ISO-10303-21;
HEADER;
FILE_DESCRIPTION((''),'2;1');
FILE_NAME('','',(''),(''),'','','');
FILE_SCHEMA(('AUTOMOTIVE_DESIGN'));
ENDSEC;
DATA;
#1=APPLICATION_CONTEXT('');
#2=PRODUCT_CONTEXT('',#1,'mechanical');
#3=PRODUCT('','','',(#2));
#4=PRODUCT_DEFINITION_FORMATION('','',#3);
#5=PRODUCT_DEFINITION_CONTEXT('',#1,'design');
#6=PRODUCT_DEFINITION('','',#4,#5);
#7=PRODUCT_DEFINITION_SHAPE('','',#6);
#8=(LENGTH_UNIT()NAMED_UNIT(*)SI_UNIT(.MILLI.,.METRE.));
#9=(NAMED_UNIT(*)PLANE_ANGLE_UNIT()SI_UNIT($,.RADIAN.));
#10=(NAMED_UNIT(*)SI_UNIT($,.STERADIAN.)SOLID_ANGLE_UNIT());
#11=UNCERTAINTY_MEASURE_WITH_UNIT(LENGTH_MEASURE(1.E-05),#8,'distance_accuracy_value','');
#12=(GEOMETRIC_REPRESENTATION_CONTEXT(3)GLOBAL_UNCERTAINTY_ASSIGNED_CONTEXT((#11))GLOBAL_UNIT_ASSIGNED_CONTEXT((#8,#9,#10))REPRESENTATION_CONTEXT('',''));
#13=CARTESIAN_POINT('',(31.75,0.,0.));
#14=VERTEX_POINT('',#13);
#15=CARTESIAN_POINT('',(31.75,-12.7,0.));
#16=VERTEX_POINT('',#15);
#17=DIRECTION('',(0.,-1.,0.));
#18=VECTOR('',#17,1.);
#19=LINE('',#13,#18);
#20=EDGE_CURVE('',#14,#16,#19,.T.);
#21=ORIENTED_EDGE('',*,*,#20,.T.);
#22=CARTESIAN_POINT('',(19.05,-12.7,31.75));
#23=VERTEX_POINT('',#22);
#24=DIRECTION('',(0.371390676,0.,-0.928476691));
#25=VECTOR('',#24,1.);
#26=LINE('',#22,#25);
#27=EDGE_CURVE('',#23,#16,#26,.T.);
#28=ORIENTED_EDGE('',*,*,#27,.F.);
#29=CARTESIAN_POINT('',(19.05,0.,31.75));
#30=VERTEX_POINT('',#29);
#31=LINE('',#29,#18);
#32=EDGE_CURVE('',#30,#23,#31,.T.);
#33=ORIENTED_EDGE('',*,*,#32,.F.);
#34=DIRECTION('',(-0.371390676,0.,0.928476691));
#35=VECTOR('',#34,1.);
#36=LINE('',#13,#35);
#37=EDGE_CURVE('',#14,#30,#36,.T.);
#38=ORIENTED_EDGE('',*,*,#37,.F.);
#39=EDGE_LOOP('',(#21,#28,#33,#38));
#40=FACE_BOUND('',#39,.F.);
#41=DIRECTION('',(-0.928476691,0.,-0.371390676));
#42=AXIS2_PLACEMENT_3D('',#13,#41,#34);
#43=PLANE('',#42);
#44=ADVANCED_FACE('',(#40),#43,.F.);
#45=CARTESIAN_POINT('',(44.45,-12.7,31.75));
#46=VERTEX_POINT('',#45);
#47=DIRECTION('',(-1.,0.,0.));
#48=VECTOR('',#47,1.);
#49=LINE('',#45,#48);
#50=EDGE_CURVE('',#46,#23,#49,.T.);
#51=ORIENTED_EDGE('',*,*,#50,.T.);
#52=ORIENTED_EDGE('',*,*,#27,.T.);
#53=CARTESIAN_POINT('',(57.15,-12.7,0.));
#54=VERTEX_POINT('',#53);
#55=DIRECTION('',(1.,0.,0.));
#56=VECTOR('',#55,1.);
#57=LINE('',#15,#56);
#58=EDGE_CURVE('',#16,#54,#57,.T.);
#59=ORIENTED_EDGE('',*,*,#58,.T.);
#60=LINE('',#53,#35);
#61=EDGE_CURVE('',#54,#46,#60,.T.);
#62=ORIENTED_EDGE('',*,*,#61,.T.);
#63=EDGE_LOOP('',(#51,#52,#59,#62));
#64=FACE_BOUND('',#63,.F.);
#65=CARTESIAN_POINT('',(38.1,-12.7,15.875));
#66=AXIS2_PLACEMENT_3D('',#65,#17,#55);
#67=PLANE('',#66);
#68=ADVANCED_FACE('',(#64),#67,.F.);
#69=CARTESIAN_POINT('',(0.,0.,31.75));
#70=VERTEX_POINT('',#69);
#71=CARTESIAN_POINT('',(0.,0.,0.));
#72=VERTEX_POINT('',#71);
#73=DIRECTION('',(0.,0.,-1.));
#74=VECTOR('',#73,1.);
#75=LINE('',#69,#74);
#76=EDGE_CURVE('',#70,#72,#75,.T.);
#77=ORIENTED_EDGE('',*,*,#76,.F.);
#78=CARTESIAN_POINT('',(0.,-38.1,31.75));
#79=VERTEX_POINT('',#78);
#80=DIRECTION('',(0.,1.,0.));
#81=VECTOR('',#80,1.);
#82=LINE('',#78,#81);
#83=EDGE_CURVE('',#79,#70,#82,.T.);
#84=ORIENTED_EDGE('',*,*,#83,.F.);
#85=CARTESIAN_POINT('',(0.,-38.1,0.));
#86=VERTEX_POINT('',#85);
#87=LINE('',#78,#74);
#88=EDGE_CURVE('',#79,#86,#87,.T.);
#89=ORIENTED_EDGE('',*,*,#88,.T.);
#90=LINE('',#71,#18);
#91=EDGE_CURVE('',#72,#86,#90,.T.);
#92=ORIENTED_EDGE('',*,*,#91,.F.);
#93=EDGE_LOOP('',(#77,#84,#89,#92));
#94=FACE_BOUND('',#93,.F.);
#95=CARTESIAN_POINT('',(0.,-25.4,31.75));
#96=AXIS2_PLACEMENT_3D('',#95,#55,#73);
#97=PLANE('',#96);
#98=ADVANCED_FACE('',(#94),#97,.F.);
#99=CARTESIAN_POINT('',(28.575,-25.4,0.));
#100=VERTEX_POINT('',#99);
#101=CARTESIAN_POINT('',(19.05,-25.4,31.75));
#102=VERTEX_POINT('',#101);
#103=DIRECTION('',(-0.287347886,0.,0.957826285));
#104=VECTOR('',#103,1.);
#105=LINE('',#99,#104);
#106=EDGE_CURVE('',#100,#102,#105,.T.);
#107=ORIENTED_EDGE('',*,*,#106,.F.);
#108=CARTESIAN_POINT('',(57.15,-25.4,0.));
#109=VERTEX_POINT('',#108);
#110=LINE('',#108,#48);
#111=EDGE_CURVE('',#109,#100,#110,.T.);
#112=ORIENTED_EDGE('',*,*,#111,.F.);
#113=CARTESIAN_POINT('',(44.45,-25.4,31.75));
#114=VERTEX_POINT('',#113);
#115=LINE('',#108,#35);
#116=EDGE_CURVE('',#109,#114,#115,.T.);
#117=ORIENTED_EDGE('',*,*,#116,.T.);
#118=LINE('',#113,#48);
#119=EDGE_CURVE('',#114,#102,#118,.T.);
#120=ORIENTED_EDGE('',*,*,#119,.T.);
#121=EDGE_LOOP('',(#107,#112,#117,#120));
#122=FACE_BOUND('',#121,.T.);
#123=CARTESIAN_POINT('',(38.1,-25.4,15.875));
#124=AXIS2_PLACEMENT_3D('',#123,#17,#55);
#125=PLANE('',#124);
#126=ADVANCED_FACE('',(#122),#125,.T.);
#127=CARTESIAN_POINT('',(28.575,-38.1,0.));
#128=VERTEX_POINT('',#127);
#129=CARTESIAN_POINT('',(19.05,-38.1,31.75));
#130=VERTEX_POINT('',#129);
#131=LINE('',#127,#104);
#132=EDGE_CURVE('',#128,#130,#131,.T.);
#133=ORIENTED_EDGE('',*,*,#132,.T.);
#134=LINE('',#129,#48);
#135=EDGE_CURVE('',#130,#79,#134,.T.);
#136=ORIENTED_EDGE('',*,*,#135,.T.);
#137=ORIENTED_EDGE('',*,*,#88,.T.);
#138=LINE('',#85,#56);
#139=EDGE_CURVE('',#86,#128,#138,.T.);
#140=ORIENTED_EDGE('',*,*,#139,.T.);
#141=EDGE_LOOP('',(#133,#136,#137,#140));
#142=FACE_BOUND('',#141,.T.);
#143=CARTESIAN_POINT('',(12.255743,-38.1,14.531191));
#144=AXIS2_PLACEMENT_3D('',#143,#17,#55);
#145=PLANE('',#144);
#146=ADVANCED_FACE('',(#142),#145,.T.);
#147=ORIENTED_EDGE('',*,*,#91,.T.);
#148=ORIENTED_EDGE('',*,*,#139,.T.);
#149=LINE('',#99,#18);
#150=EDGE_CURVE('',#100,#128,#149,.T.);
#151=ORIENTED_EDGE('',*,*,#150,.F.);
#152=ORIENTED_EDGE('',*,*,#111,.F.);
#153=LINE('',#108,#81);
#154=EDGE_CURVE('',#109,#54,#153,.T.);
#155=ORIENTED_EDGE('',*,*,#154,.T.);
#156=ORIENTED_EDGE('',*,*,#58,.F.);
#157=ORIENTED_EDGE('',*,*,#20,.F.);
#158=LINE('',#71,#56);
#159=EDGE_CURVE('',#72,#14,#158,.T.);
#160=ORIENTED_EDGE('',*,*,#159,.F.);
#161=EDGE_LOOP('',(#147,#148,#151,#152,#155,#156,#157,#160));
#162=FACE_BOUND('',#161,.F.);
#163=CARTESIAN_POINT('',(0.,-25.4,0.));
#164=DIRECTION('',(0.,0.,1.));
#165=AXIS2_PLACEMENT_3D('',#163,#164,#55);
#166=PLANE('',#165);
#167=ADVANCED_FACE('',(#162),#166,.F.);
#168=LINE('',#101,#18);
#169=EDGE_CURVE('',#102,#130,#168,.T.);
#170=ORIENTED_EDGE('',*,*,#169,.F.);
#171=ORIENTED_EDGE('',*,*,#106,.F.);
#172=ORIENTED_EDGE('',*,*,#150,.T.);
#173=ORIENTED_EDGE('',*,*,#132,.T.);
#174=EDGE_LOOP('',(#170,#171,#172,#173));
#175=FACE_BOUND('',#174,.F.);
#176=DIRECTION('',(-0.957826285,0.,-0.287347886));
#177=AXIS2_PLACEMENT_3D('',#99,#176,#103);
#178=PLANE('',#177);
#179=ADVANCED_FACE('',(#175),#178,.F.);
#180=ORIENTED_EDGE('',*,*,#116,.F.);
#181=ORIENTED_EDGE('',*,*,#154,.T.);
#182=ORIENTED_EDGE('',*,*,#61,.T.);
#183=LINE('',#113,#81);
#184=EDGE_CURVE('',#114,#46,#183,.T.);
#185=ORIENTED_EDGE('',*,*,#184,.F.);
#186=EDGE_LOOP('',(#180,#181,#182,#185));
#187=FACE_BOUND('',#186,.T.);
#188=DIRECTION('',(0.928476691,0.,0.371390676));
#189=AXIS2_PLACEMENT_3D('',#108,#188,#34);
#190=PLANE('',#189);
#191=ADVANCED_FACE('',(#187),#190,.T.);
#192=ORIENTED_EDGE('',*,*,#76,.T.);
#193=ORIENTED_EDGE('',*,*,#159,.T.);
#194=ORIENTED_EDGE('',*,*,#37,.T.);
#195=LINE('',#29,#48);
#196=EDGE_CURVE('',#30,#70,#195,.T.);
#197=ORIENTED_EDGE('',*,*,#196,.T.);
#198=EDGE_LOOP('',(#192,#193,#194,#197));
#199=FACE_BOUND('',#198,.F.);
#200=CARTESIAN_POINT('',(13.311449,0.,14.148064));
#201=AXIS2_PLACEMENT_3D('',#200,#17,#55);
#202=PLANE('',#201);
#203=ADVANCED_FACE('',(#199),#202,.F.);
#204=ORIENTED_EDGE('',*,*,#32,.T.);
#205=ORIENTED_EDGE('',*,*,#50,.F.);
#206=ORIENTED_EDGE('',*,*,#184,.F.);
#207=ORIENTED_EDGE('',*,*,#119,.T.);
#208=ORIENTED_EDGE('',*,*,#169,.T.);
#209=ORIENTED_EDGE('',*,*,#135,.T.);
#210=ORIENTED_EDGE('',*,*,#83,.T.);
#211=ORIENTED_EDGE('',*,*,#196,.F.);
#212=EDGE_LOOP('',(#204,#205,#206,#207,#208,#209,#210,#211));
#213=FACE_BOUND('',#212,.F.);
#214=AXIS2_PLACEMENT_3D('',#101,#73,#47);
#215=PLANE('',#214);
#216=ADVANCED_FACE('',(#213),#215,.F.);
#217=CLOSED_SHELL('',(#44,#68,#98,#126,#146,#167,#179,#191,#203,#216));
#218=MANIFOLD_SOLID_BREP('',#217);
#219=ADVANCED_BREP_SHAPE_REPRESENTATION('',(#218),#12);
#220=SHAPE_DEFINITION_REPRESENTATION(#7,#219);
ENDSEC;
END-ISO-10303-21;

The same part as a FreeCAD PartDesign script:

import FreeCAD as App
import Part
import Sketcher
Q = App.Units.Quantity


def add_polygon(sketch, points):
    """Adds a closed chain of lines whose ends are joined by coincident constraints."""
    first, n = sketch.GeometryCount, len(points)
    for a, b in zip(points, points[1:] + points[:1]):
        sketch.addGeometry(Part.LineSegment(App.Vector(*a, 0), App.Vector(*b, 0)), False)
    for i in range(n):
        sketch.addConstraint(Sketcher.Constraint("Coincident", first + i, 2, first + (i + 1) % n, 1))

doc = App.newDocument("Part")
params = doc.addObject("Spreadsheet::Sheet", "Params")
for row, (alias, value) in enumerate([
    ("sketch1_width", "1.25 in"),
    ("sketch1_width2", "0.75 in"),
    ("pad1_length", "1 in"),
    ("sketch2_width", "1 in"),
    ("pad2_length", "0.5 in"),
    ("sketch3_width", "0.75 in"),
    ("sketch3_height", "1.25 in"),
    ("sketch3_width2", "1.125 in"),
    ("pad3_length", "0.5 in"),
], start=1):
    params.set(f"A{row}", alias)
    params.set(f"B{row}", "=" + value)
    params.setAlias(f"B{row}", alias)

body = doc.addObject("PartDesign::Body", "Body")

# Sketch on XZ plane
sketch1 = doc.addObject("Sketcher::SketchObject", "Sketch")
body.addObject(sketch1)
sketch1.AttachmentSupport = (doc.XZ_Plane, [""])
sketch1.MapMode = "FlatFace"
add_polygon(sketch1, [(0, 31.75), (0, 0), (31.75, 0), (19.05, 31.75)])  # lines 0-3
sketch1.addConstraint(Sketcher.Constraint("Vertical", 0))
sketch1.addConstraint(Sketcher.Constraint("Horizontal", 1))
sketch1.addConstraint(Sketcher.Constraint("Horizontal", 3))
sketch1.addConstraint(Sketcher.Constraint("Coincident", 0, 2, -1, 1))
sketch1.addConstraint(Sketcher.Constraint("Equal", 1, 0))
sketch1.addConstraint(Sketcher.Constraint("DistanceX", 1, 1, 1, 2, Q("1.25 in")))
sketch1.addConstraint(Sketcher.Constraint("DistanceX", 3, 2, 3, 1, Q("0.75 in")))
sketch1.setExpression("Constraints[9]", "Params.sketch1_width")
sketch1.setExpression("Constraints[10]", "Params.sketch1_width2")
pad1 = doc.addObject("PartDesign::Pad", "Pad")
body.addObject(pad1)
pad1.Profile = sketch1
pad1.setExpression("Length", "Params.pad1_length")

# Sketch on XZ plane
sketch2 = doc.addObject("Sketcher::SketchObject", "Sketch001")
body.addObject(sketch2)
sketch2.AttachmentSupport = (doc.XZ_Plane, [""])
sketch2.MapMode = "FlatFace"
sketch2.AttachmentOffset = App.Placement(App.Vector(0, 0, 1 * 25.4), App.Rotation())
add_polygon(sketch2, [(19.05, 31.75), (31.75, 0), (57.15, 0), (44.45, 31.75)])  # lines 0-3
sketch2.addConstraint(Sketcher.Constraint("Horizontal", 1))
sketch2.addConstraint(Sketcher.Constraint("Horizontal", 3))
sketch2.addConstraint(Sketcher.Constraint("PointOnObject", 0, 2, -1))
sketch2.addConstraint(Sketcher.Constraint("Parallel", 0, 2))
sketch2.addConstraint(Sketcher.Constraint("DistanceX", 1, 1, 1, 2, Q("1 in")))
sketch2.addConstraint(Sketcher.Constraint("DistanceX", 2, 2, 1, 2, Q("0.5 in")))
sketch2.addConstraint(Sketcher.Constraint("DistanceX", -1, 1, 0, 2, Q("1.25 in")))
sketch2.addConstraint(Sketcher.Constraint("DistanceY", -1, 1, 2, 2, Q("1.25 in")))
sketch2.setExpression("Constraints[8]", "Params.sketch2_width")
pad2 = doc.addObject("PartDesign::Pad", "Pad001")
body.addObject(pad2)
pad2.Profile = sketch2
pad2.setExpression("Length", "Params.pad2_length")
pad2.Reversed = True

# Sketch on XZ plane
sketch3 = doc.addObject("Sketcher::SketchObject", "Sketch002")
body.addObject(sketch3)
sketch3.AttachmentSupport = (doc.XZ_Plane, [""])
sketch3.MapMode = "FlatFace"
sketch3.AttachmentOffset = App.Placement(App.Vector(0, 0, 1 * 25.4), App.Rotation())
add_polygon(sketch3, [(0, 31.75), (0, 0), (28.575, 0), (19.05, 31.75)])  # lines 0-3
sketch3.addConstraint(Sketcher.Constraint("Vertical", 0))
sketch3.addConstraint(Sketcher.Constraint("Horizontal", 1))
sketch3.addConstraint(Sketcher.Constraint("Horizontal", 3))
sketch3.addConstraint(Sketcher.Constraint("Coincident", 0, 2, -1, 1))
sketch3.addConstraint(Sketcher.Constraint("DistanceX", 3, 2, 3, 1, Q("0.75 in")))
sketch3.addConstraint(Sketcher.Constraint("DistanceY", 0, 2, 0, 1, Q("1.25 in")))
sketch3.addConstraint(Sketcher.Constraint("DistanceX", 1, 1, 1, 2, Q("1.125 in")))
sketch3.setExpression("Constraints[8]", "Params.sketch3_width")
sketch3.setExpression("Constraints[9]", "Params.sketch3_height")
sketch3.setExpression("Constraints[10]", "Params.sketch3_width2")
pad3 = doc.addObject("PartDesign::Pad", "Pad002")
body.addObject(pad3)
pad3.Profile = sketch3
pad3.setExpression("Length", "Params.pad3_length")

doc.recompute()
